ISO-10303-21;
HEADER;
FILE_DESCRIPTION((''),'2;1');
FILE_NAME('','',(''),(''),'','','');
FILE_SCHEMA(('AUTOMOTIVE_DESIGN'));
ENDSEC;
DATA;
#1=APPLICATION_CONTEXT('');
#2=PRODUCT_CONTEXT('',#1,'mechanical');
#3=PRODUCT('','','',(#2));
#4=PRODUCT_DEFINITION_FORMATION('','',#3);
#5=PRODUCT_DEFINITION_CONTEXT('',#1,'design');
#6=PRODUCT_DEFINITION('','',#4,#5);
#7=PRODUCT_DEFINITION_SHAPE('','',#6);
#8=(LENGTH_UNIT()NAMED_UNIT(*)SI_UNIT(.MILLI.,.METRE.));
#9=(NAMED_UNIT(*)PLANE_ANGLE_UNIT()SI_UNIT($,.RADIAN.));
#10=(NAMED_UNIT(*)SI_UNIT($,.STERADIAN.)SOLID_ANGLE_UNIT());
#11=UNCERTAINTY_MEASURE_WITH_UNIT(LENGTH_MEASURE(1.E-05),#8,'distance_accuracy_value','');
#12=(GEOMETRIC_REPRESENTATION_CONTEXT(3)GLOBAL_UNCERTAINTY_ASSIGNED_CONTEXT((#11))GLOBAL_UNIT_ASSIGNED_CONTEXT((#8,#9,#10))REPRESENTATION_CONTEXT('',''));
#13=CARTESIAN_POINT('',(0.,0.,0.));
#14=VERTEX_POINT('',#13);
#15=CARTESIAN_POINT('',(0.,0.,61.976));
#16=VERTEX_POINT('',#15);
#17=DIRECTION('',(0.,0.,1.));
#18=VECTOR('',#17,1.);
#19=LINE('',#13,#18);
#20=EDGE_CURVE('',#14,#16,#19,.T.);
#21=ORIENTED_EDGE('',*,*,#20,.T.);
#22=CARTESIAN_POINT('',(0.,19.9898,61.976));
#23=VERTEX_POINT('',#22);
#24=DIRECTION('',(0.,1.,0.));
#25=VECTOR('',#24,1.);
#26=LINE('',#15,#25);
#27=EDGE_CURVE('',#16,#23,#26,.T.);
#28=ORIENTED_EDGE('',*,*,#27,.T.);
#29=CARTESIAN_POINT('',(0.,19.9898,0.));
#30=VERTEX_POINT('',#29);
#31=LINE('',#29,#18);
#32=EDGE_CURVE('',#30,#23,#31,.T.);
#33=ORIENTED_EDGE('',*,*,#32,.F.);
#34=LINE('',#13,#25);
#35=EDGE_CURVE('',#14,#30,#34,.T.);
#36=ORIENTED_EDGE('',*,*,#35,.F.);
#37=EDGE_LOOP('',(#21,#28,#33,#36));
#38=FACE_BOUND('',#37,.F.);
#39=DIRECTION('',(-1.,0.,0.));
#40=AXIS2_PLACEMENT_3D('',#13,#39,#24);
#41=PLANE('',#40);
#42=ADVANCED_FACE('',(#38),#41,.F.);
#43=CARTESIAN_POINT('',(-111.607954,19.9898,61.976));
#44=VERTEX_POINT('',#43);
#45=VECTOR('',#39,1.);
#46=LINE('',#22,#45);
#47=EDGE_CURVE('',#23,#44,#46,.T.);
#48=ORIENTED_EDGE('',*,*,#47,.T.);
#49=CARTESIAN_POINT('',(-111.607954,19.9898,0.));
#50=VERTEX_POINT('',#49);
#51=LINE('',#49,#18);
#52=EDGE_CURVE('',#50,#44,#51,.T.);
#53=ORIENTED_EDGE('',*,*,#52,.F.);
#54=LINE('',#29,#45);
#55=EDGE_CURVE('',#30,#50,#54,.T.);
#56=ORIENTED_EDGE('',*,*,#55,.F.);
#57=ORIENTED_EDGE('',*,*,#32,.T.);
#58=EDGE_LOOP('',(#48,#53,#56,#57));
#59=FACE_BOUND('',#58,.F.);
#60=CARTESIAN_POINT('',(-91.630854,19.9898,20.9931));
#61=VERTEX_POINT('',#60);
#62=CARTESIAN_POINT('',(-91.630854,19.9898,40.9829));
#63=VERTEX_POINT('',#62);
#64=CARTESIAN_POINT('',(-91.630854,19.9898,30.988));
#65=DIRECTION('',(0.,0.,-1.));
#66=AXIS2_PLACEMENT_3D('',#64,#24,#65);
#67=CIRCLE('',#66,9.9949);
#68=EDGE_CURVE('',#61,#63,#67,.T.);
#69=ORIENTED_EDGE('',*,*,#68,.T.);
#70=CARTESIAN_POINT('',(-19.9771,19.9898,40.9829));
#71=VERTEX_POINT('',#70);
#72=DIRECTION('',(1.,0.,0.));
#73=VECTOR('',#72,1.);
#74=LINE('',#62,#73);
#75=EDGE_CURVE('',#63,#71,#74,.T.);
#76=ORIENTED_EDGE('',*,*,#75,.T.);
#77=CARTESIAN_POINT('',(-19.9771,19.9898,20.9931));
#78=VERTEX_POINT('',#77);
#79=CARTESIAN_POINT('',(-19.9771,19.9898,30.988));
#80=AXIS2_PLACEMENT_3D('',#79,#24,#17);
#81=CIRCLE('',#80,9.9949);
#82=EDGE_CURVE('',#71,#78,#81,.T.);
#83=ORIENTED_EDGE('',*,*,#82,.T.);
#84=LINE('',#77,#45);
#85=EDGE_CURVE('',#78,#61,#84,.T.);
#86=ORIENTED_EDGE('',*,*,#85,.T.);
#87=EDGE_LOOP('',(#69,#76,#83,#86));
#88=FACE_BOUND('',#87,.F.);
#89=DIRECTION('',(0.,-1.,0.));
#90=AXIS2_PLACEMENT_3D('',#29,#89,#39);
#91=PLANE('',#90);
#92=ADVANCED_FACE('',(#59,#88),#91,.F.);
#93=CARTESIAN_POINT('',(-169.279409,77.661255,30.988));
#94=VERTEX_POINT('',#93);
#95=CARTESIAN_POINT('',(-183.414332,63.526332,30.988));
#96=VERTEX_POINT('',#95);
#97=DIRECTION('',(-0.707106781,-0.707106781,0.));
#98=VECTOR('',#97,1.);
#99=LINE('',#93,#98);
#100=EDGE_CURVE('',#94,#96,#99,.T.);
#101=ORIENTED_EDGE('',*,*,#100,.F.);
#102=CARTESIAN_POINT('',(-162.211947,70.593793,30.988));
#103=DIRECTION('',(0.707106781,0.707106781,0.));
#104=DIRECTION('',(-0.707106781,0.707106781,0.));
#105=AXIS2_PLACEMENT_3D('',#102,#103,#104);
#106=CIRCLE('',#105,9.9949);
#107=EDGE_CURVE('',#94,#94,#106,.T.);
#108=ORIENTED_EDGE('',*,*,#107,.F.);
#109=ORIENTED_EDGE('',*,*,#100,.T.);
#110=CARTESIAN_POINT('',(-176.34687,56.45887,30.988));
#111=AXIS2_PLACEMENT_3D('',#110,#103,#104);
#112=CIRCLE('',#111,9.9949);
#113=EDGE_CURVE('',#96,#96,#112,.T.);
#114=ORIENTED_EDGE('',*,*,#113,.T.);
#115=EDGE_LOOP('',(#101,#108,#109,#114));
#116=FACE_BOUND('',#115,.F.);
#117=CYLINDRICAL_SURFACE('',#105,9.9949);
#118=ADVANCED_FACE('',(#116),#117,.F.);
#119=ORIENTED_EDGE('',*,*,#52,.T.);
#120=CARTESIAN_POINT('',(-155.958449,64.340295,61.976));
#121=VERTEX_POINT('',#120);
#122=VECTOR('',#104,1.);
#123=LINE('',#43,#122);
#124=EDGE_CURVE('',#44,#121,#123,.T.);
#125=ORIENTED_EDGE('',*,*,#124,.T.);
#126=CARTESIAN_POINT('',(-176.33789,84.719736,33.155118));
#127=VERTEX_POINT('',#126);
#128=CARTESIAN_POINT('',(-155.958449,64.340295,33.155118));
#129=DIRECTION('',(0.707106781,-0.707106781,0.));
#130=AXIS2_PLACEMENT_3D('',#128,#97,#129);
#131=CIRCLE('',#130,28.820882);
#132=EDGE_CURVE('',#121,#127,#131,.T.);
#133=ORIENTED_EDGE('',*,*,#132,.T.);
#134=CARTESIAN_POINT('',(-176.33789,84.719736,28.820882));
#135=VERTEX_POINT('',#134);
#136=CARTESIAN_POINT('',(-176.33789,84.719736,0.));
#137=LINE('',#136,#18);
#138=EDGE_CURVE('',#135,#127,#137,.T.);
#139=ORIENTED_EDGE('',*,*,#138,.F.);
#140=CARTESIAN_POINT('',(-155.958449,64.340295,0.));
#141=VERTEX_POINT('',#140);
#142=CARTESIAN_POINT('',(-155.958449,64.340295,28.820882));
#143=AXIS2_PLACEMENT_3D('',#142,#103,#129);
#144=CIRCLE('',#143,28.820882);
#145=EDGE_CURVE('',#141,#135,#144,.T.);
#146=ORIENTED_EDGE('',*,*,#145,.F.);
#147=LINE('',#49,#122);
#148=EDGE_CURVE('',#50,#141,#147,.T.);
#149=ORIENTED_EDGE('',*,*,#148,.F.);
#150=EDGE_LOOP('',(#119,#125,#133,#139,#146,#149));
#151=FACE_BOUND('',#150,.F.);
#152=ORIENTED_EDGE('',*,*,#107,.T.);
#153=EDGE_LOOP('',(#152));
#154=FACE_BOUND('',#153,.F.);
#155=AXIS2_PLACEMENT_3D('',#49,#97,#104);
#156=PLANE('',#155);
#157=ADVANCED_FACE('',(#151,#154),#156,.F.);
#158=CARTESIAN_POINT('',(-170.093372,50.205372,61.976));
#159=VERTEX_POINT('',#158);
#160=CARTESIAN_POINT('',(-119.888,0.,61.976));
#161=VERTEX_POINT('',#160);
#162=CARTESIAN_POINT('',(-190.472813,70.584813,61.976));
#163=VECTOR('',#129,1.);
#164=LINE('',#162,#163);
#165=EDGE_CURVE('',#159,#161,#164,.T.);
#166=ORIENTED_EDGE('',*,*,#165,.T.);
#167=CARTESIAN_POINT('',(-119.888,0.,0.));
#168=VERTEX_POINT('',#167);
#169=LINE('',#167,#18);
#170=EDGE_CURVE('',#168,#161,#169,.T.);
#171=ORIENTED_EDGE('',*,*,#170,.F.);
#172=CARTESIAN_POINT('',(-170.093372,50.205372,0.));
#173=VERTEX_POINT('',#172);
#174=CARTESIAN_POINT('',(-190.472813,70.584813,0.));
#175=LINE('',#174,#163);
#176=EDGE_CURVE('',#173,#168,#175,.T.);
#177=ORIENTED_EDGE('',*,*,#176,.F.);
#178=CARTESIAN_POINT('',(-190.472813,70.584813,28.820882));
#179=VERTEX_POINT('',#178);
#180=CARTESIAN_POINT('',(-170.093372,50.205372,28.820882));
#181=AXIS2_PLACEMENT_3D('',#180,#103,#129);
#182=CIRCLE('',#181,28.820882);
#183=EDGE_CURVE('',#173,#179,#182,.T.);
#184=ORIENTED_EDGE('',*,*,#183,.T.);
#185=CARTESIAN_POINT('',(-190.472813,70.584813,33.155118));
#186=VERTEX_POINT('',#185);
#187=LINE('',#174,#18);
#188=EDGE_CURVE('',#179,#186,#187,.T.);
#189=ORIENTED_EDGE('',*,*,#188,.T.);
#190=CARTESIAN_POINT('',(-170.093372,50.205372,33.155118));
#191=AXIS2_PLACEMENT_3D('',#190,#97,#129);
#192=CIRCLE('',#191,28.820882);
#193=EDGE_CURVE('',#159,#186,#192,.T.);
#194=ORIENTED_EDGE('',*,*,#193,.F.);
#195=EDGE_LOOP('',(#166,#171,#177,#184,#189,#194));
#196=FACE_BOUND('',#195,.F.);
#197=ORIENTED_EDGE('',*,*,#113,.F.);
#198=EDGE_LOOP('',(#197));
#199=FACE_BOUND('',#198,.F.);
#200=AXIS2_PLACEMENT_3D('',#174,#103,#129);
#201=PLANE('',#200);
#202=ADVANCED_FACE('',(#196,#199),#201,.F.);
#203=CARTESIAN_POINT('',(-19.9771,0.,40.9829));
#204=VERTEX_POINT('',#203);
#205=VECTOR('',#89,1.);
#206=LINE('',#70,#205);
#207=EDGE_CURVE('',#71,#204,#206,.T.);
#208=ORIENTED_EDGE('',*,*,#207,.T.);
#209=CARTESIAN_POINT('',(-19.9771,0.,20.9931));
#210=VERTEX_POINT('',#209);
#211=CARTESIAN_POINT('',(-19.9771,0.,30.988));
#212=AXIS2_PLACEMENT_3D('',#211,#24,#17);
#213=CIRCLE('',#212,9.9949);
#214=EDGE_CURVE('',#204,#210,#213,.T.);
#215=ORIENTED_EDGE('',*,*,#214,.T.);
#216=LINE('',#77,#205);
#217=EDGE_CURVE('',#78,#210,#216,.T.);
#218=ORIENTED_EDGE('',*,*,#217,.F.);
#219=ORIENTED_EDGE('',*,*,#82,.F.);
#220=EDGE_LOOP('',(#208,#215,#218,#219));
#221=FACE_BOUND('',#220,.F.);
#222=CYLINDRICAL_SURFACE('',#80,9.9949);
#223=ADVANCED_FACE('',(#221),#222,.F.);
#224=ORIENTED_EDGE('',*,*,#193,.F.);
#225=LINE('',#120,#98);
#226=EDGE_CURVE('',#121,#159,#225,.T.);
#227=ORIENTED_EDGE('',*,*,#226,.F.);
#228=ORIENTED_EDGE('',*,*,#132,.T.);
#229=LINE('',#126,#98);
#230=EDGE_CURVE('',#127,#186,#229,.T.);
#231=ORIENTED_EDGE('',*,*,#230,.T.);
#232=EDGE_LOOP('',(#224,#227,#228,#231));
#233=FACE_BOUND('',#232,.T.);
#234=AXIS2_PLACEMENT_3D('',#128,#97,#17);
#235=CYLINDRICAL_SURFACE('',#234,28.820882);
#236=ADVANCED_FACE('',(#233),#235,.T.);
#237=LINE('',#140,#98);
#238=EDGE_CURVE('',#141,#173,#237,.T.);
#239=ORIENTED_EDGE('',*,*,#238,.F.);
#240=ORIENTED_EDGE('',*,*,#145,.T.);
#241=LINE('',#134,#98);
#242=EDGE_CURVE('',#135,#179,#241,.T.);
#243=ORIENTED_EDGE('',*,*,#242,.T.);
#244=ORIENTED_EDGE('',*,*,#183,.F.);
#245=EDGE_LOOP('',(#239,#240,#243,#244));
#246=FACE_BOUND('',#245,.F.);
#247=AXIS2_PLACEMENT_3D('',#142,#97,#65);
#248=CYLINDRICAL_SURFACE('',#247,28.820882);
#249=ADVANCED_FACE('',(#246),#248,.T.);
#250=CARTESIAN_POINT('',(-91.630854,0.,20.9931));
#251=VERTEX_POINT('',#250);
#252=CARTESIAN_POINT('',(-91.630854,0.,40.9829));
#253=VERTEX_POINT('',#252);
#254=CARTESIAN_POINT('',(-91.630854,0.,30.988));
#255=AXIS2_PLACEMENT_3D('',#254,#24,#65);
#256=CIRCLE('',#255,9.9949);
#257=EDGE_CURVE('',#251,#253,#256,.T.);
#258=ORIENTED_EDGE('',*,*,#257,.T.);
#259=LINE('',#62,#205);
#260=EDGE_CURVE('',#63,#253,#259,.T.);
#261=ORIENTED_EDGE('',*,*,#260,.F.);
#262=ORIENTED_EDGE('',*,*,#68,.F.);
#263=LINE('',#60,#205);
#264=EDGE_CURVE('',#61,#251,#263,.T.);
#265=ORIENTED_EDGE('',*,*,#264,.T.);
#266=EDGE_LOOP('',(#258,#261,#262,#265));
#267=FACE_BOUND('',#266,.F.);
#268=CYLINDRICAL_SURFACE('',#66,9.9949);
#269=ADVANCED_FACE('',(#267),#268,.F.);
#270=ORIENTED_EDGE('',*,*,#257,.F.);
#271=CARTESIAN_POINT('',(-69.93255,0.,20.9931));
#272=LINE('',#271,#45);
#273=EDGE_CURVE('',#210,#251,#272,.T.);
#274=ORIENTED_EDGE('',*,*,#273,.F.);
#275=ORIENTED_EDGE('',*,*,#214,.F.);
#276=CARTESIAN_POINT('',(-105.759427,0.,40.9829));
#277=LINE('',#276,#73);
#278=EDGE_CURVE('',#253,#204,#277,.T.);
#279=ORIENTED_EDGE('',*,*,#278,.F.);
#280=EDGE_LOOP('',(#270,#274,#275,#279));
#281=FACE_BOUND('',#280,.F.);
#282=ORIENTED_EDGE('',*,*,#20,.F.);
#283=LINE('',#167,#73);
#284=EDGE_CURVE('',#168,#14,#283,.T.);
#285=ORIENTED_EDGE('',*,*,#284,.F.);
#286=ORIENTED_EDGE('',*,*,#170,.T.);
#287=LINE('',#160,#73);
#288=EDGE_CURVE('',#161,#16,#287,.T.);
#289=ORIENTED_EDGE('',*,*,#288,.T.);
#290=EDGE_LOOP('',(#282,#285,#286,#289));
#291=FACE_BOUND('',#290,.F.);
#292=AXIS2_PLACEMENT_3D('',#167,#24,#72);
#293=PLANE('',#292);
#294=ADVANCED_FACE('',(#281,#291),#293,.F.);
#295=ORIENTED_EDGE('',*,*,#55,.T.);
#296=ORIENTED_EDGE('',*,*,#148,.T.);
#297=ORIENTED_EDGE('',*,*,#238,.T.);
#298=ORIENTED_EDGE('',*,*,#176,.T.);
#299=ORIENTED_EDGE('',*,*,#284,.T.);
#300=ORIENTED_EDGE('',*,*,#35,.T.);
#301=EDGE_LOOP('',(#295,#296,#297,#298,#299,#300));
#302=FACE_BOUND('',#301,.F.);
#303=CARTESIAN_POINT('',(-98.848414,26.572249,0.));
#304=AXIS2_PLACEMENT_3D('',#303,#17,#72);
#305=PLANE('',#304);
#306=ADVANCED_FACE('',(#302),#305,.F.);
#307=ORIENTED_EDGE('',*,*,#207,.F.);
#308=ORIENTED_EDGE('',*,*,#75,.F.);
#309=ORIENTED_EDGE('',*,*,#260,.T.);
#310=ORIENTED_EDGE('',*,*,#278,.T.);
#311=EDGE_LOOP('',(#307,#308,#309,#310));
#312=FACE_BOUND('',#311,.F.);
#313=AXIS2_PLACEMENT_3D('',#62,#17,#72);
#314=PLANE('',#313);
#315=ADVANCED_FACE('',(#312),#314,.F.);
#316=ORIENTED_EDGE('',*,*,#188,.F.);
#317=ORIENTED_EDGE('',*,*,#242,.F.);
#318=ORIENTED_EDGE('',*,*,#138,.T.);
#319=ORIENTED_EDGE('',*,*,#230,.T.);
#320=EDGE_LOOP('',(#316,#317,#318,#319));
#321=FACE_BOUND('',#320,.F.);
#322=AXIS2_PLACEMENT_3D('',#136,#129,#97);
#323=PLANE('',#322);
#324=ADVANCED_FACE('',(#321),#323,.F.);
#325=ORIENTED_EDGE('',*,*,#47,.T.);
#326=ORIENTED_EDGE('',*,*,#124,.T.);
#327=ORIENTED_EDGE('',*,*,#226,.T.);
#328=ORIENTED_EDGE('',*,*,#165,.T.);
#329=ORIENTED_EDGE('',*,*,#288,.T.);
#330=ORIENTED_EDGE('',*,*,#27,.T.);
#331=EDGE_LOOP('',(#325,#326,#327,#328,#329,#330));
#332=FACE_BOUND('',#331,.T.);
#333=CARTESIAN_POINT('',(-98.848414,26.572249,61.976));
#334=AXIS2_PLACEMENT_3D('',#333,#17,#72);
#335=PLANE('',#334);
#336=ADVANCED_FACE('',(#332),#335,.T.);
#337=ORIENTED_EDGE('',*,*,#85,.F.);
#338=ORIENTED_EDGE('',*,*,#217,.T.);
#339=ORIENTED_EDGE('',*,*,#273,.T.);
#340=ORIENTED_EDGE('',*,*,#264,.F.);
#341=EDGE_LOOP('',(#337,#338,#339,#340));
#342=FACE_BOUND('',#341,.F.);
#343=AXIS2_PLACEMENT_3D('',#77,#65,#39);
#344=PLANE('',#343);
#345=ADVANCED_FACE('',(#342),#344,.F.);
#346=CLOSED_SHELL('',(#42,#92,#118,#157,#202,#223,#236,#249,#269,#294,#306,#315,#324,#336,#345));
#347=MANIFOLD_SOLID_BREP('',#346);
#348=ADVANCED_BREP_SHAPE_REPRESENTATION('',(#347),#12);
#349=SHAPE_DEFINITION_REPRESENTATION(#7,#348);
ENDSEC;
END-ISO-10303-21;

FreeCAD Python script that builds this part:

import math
import FreeCAD as App
import Part
import Sketcher
from FreeCAD import Vector
Q = App.Units.Quantity


def edges_at(feature, points):
    """Names of the edges that pass closest to the given points."""
    edges = feature.Shape.Edges
    near = lambda p: min(range(len(edges)), key=lambda i: edges[i].distToShape(Part.Vertex(*p))[0])
    return sorted({f"Edge{near(p) + 1}" for p in points})


def add_polygon(sketch, points):
    """Adds a closed chain of lines whose ends are joined by coincident constraints."""
    first, n = sketch.GeometryCount, len(points)
    for a, b in zip(points, points[1:] + points[:1]):
        sketch.addGeometry(Part.LineSegment(App.Vector(*a, 0), App.Vector(*b, 0)), False)
    for i in range(n):
        sketch.addConstraint(Sketcher.Constraint("Coincident", first + i, 2, first + (i + 1) % n, 1))

doc = App.newDocument("Part")
body = doc.addObject("PartDesign::Body", "Body")

# Sketch on XY plane
sketch1 = doc.addObject("Sketcher::SketchObject", "Sketch")
body.addObject(sketch1)
sketch1.AttachmentSupport = (doc.XY_Plane, [""])
sketch1.MapMode = "FlatFace"
add_polygon(sketch1, [(-120, 0), (0, 0), (0, 20), (-112, 20), (-176, 85), (-190, 71)])  # lines 0-5
sketch1.addConstraint(Sketcher.Constraint("Horizontal", 0))
sketch1.addConstraint(Sketcher.Constraint("Vertical", 1))
sketch1.addConstraint(Sketcher.Constraint("Horizontal", 2))
sketch1.addConstraint(Sketcher.Constraint("Coincident", 0, 2, -1, 1))
sketch1.addConstraint(Sketcher.Constraint("Perpendicular", 3, 4))
sketch1.addConstraint(Sketcher.Constraint("Perpendicular", 4, 5))
sketch1.addConstraint(Sketcher.Constraint("Angle", 3, Q("135 deg")))
sketch1.addConstraint(Sketcher.Constraint("DistanceX", 0, 1, 0, 2, Q("4.72 in")))
sketch1.addConstraint(Sketcher.Constraint("Distance", 5, Q("3.93 in")))
sketch1.addConstraint(Sketcher.Constraint("DistanceY", 1, 1, 1, 2, Q("0.787 in")))
sketch1.addConstraint(Sketcher.Constraint("Distance", 4, Q("0.787 in")))
pad1 = doc.addObject("PartDesign::Pad", "Pad")
body.addObject(pad1)
pad1.Profile = sketch1
pad1.Length = Q("2.44 in")

# Sketch on XZ plane
sketch2 = doc.addObject("Sketcher::SketchObject", "Sketch001")
body.addObject(sketch2)
sketch2.AttachmentSupport = (doc.XZ_Plane, [""])
sketch2.MapMode = "FlatFace"
sketch2.AttachmentOffset = App.Placement(Vector(0, 0, -0.787 * 25.4), App.Rotation())
sketch2.addGeometry(Part.LineSegment(Vector(-92, 41, 0), Vector(-20, 41, 0)), False)
sketch2.addGeometry(Part.ArcOfCircle(Part.Circle(Vector(-20, 31, 0), Vector(0, 0, 1), 10), math.radians(-90), math.radians(90)), False)
sketch2.addGeometry(Part.LineSegment(Vector(-20, 21, 0), Vector(-92, 21, 0)), False)
sketch2.addGeometry(Part.ArcOfCircle(Part.Circle(Vector(-92, 31, 0), Vector(0, 0, 1), 10), math.radians(90), math.radians(270)), False)
sketch2.addConstraint(Sketcher.Constraint("Tangent", 0, 2, 1, 2))
sketch2.addConstraint(Sketcher.Constraint("Tangent", 1, 1, 2, 1))
sketch2.addConstraint(Sketcher.Constraint("Tangent", 2, 2, 3, 2))
sketch2.addConstraint(Sketcher.Constraint("Tangent", 3, 1, 0, 1))
sketch2.addConstraint(Sketcher.Constraint("Horizontal", 0))
sketch2.addConstraint(Sketcher.Constraint("Horizontal", 2))
sketch2.addConstraint(Sketcher.Constraint("Radius", 1, Q("0.3935 in")))
sketch2.addConstraint(Sketcher.Constraint("DistanceY", -1, 1, 1, 3, Q("1.22 in")))
sketch2.addConstraint(Sketcher.Constraint("DistanceX", 1, 3, -1, 1, Q("0.7865 in")))
sketch2.addConstraint(Sketcher.Constraint("DistanceX", 0, 1, 0, 2, 71.653754))
pocket1 = doc.addObject("PartDesign::Pocket", "Pocket")
body.addObject(pocket1)
pocket1.Profile = sketch2
pocket1.Length = Q("1.41 in")
pocket1.Reversed = True

# Sketch on an angled plane
sketch3 = doc.addObject("Sketcher::SketchObject", "Sketch002")
body.addObject(sketch3)
sketch3.Placement = App.Placement(Vector(-45.809077, -45.809077, 0), App.Rotation(Vector(-0.707106781, 0.707106781, 0), Vector(0, 0, 0.999999999), Vector(0.707106781, 0.707106781, 0), "ZXY"))
sketch3.addGeometry(Part.Circle(Vector(165, 31, 0), Vector(0, 0, 1), 10), False)
sketch3.addConstraint(Sketcher.Constraint("Diameter", 0, Q("0.787 in")))
sketch3.addConstraint(Sketcher.Constraint("DistanceY", -1, 1, 0, 3, Q("1.22 in")))
sketch3.addConstraint(Sketcher.Constraint("DistanceX", -1, 1, 0, 3, 164.618518))
pocket2 = doc.addObject("PartDesign::Pocket", "Pocket001")
body.addObject(pocket2)
pocket2.Profile = sketch3
pocket2.Length = Q("1.69 in")
doc.recompute()

fillet = doc.addObject("PartDesign::Fillet", "Fillet")
body.addObject(fillet)
fillet.Base = (pocket2, edges_at(pocket2, [(-183.405, 77.652, 0), (-183.405, 77.652, 61.976)]))
fillet.Radius = 28.820882

doc.recompute()
